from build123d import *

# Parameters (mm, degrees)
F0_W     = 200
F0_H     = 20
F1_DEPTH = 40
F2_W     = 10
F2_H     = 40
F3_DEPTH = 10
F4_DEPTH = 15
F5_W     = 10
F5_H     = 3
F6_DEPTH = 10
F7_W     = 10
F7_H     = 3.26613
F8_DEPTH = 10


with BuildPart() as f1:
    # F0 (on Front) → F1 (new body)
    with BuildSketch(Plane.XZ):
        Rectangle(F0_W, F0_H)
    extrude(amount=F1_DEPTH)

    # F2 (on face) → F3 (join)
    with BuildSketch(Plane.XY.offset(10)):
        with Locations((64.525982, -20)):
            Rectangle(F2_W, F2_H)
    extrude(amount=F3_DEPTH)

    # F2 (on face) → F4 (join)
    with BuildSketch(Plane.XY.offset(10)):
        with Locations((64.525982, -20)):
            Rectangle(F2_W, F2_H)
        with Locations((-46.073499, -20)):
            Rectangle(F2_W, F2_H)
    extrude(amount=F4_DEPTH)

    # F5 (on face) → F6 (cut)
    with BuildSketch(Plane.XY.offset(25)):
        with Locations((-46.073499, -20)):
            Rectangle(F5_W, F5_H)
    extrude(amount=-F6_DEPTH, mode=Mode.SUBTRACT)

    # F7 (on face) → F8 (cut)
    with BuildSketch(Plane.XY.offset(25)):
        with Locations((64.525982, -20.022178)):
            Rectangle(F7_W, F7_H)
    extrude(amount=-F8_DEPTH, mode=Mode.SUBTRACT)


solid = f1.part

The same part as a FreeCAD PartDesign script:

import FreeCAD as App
import Part
import Sketcher
from FreeCAD import Vector
Q = App.Units.Quantity


def add_polygon(sketch, points):
    """Adds a closed chain of lines whose ends are joined by coincident constraints."""
    first, n = sketch.GeometryCount, len(points)
    for a, b in zip(points, points[1:] + points[:1]):
        sketch.addGeometry(Part.LineSegment(App.Vector(*a, 0), App.Vector(*b, 0)), False)
    for i in range(n):
        sketch.addConstraint(Sketcher.Constraint("Coincident", first + i, 2, first + (i + 1) % n, 1))

doc = App.newDocument("Part")
body = doc.addObject("PartDesign::Body", "Body")

sketch1 = doc.addObject("Sketcher::SketchObject", "Sketch")
body.addObject(sketch1)
sketch1.AttachmentSupport = (doc.XZ_Plane, [""])
sketch1.MapMode = "FlatFace"
add_polygon(sketch1, [(-100, 10), (-100, -10), (100, -10), (100, 10)])
sketch1.addConstraint([
    Sketcher.Constraint("Vertical", 0),
    Sketcher.Constraint("Horizontal", 1),
    Sketcher.Constraint("Vertical", 2),
    Sketcher.Constraint("Horizontal", 3),
    Sketcher.Constraint("Symmetric", 0, 2, 2, 2, -1, 1),
    Sketcher.Constraint("DistanceX", 1, 1, 1, 2, Q("200 mm")),
    Sketcher.Constraint("DistanceY", 0, 2, 0, 1, Q("20 mm")),
])
pad1 = doc.addObject("PartDesign::Pad", "Pad")
body.addObject(pad1)
pad1.Profile = sketch1
pad1.Length = 40

sketch2 = doc.addObject("Sketcher::SketchObject", "Sketch001")
body.addObject(sketch2)
sketch2.AttachmentSupport = (doc.XY_Plane, [""])
sketch2.MapMode = "FlatFace"
sketch2.AttachmentOffset = App.Placement(Vector(0, 0, 10), App.Rotation())
add_polygon(sketch2, [(60, 0), (60, -40), (70, -40), (70, 0)])
sketch2.addConstraint([
    Sketcher.Constraint("Vertical", 0),
    Sketcher.Constraint("Horizontal", 1),
    Sketcher.Constraint("Vertical", 2),
    Sketcher.Constraint("Horizontal", 3),
    Sketcher.Constraint("PointOnObject", 2, 2, -1),
    Sketcher.Constraint("DistanceX", 1, 1, 1, 2, Q("10 mm")),
    Sketcher.Constraint("DistanceY", 0, 2, 0, 1, Q("40 mm")),
    Sketcher.Constraint("DistanceX", -1, 1, 1, 2, Q("69.525982 mm")),
])
pad2 = doc.addObject("PartDesign::Pad", "Pad001")
body.addObject(pad2)
pad2.Profile = sketch2
pad2.Length = 10

sketch3 = doc.addObject("Sketcher::SketchObject", "Sketch002")
body.addObject(sketch3)
sketch3.AttachmentSupport = (doc.XY_Plane, [""])
sketch3.MapMode = "FlatFace"
sketch3.AttachmentOffset = App.Placement(Vector(0, 0, 10), App.Rotation())
add_polygon(sketch3, [(60, 0), (60, -40), (70, -40), (70, 0)])
add_polygon(sketch3, [(-51, 0), (-51, -40), (-41, -40), (-41, 0)])
sketch3.addConstraint([
    Sketcher.Constraint("Vertical", 0),
    Sketcher.Constraint("Horizontal", 1),
    Sketcher.Constraint("Vertical", 2),
    Sketcher.Constraint("Horizontal", 3),
    Sketcher.Constraint("Vertical", 4),
    Sketcher.Constraint("Horizontal", 5),
    Sketcher.Constraint("Vertical", 6),
    Sketcher.Constraint("Horizontal", 7),
    Sketcher.Constraint("PointOnObject", 2, 2, -1),
    Sketcher.Constraint("PointOnObject", 6, 2, -1),
    Sketcher.Constraint("Horizontal", 1, 2, 4, 2),
    Sketcher.Constraint("Equal", 3, 5),
    Sketcher.Constraint("DistanceX", 1, 1, 1, 2, Q("10 mm")),
    Sketcher.Constraint("DistanceY", 0, 2, 0, 1, Q("40 mm")),
    Sketcher.Constraint("DistanceX", 4, 2, -1, 1, Q("51.073499 mm")),
    Sketcher.Constraint("DistanceX", -1, 1, 1, 2, Q("69.525982 mm")),
])
pad3 = doc.addObject("PartDesign::Pad", "Pad002")
body.addObject(pad3)
pad3.Profile = sketch3
pad3.Length = 15

sketch4 = doc.addObject("Sketcher::SketchObject", "Sketch003")
body.addObject(sketch4)
sketch4.AttachmentSupport = (doc.XY_Plane, [""])
sketch4.MapMode = "FlatFace"
sketch4.AttachmentOffset = App.Placement(Vector(0, 0, 25), App.Rotation())
add_polygon(sketch4, [(-51.1, -18.5), (-51.1, -21.5), (-41.1, -21.5), (-41.1, -18.5)])
sketch4.addConstraint([
    Sketcher.Constraint("Vertical", 0),
    Sketcher.Constraint("Horizontal", 1),
    Sketcher.Constraint("Vertical", 2),
    Sketcher.Constraint("Horizontal", 3),
    Sketcher.Constraint("DistanceX", 1, 1, 1, 2, Q("10 mm")),
    Sketcher.Constraint("DistanceY", 0, 2, 0, 1, Q("3 mm")),
    Sketcher.Constraint("DistanceY", 0, 2, -1, 1, Q("21.5 mm")),
    Sketcher.Constraint("DistanceX", 0, 2, -1, 1, Q("51.073499 mm")),
])
pocket1 = doc.addObject("PartDesign::Pocket", "Pocket")
body.addObject(pocket1)
pocket1.Profile = sketch4
pocket1.Length = 10

sketch5 = doc.addObject("Sketcher::SketchObject", "Sketch004")
body.addObject(sketch5)
sketch5.AttachmentSupport = (doc.XY_Plane, [""])
sketch5.MapMode = "FlatFace"
sketch5.AttachmentOffset = App.Placement(Vector(0, 0, 25), App.Rotation())
add_polygon(sketch5, [(59.5, -18.4), (59.5, -21.7), (69.5, -21.7), (69.5, -18.4)])
sketch5.addConstraint([
    Sketcher.Constraint("Vertical", 0),
    Sketcher.Constraint("Horizontal", 1),
    Sketcher.Constraint("Vertical", 2),
    Sketcher.Constraint("Horizontal", 3),
    Sketcher.Constraint("DistanceX", 1, 1, 1, 2, Q("10 mm")),
    Sketcher.Constraint("DistanceY", 0, 2, 0, 1, Q("3.26613 mm")),
    Sketcher.Constraint("DistanceX", -1, 1, 1, 2, Q("69.525982 mm")),
    Sketcher.Constraint("DistanceY", 0, 2, -1, 1, Q("21.655243 mm")),
])
pocket2 = doc.addObject("PartDesign::Pocket", "Pocket001")
body.addObject(pocket2)
pocket2.Profile = sketch5
pocket2.Length = 10

doc.recompute()
